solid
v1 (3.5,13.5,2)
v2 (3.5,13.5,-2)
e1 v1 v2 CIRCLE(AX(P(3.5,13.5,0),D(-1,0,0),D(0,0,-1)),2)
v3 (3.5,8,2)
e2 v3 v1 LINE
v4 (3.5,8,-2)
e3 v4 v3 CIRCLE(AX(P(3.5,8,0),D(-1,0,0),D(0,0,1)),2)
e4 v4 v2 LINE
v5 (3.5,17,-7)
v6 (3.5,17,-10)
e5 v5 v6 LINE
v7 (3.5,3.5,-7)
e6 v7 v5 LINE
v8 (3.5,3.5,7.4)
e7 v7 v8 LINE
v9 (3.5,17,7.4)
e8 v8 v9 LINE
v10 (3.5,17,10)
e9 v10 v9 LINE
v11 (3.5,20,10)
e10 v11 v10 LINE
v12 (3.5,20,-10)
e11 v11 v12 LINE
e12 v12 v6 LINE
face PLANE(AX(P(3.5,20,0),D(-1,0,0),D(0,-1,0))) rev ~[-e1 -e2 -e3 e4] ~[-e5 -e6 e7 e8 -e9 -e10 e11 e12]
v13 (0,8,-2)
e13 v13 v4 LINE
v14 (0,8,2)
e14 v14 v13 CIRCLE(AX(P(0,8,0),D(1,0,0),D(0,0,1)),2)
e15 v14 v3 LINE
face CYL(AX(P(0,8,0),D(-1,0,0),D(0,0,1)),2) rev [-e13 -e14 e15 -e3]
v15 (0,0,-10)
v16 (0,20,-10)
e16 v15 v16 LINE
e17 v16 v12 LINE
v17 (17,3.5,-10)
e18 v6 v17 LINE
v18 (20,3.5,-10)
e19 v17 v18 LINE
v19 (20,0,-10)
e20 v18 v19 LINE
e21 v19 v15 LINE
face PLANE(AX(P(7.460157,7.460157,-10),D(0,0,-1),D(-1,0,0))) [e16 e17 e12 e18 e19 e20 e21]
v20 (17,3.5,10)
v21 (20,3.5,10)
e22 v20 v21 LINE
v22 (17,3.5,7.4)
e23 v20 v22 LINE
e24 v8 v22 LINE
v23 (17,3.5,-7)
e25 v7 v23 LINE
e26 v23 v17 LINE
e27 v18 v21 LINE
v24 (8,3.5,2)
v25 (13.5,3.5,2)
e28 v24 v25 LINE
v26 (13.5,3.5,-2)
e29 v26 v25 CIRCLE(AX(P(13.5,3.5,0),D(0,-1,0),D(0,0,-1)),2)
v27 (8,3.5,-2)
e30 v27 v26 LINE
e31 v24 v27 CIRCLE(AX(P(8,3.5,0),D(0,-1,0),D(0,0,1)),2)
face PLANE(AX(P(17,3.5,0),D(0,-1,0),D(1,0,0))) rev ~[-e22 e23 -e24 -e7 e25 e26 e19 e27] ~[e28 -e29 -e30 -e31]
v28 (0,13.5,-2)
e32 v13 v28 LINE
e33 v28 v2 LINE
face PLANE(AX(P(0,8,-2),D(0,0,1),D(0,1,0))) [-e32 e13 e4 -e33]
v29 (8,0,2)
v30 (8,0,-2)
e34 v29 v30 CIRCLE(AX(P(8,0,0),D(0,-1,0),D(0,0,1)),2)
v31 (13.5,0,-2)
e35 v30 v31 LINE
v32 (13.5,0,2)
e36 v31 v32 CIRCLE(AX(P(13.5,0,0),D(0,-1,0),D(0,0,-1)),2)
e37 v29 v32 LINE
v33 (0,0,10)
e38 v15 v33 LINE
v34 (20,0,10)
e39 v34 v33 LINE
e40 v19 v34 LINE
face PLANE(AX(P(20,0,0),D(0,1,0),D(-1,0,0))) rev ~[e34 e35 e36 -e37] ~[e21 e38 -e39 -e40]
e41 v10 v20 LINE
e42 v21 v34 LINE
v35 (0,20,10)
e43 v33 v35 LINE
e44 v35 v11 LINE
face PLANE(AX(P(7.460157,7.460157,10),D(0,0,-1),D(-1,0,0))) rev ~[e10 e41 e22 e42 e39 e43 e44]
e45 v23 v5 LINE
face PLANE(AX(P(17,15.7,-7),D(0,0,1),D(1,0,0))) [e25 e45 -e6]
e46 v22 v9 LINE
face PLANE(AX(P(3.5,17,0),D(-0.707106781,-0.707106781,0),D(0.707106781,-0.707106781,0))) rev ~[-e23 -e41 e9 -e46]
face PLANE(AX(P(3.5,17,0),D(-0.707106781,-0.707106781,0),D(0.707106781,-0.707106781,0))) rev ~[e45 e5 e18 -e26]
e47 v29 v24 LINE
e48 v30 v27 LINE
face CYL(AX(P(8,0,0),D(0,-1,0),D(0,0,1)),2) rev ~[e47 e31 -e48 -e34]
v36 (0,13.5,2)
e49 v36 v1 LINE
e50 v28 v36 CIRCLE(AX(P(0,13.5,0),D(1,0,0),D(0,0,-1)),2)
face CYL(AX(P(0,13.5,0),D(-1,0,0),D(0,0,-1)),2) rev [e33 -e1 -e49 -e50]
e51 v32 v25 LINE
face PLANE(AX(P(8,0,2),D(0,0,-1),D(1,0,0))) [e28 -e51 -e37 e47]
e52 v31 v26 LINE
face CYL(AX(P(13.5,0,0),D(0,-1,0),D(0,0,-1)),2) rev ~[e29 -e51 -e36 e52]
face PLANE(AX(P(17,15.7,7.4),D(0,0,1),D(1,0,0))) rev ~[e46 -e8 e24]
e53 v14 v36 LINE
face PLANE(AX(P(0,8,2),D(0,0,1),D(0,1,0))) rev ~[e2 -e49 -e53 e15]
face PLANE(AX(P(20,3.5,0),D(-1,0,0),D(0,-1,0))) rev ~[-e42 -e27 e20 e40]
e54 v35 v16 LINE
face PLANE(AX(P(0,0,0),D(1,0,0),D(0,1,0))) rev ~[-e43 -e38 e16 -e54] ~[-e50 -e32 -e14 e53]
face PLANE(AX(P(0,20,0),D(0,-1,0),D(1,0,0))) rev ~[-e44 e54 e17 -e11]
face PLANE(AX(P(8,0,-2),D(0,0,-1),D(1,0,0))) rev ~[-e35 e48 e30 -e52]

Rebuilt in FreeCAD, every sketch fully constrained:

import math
import FreeCAD as App
import Part
import Sketcher


def add_polygon(sketch, points):
    """Adds a closed chain of lines whose ends are joined by coincident constraints."""
    first, n = sketch.GeometryCount, len(points)
    for a, b in zip(points, points[1:] + points[:1]):
        sketch.addGeometry(Part.LineSegment(App.Vector(*a, 0), App.Vector(*b, 0)), False)
    for i in range(n):
        sketch.addConstraint(Sketcher.Constraint("Coincident", first + i, 2, first + (i + 1) % n, 1))

doc = App.newDocument("Part")
body = doc.addObject("PartDesign::Body", "Body")

# Sketch on XY plane
sketch1 = body.newObject("Sketcher::SketchObject", "Sketch")
sketch1.AttachmentSupport = (doc.getObject("XY_Plane"), [""])
sketch1.MapMode = "FlatFace"
add_polygon(sketch1, [(0, 20), (0, 0), (20, 0), (20, 3.5), (17, 3.5), (3.5, 17), (3.5, 20)])  # lines 0-6
sketch1.addConstraint([
    Sketcher.Constraint("Vertical", 0),
    Sketcher.Constraint("Horizontal", 1),
    Sketcher.Constraint("Vertical", 2),
    Sketcher.Constraint("Horizontal", 3),
    Sketcher.Constraint("Vertical", 5),
    Sketcher.Constraint("Horizontal", 6),
    Sketcher.Constraint("Coincident", 0, 2, -1, 1),
    Sketcher.Constraint("Equal", 1, 0),
    Sketcher.Constraint("Equal", 6, 2),
    Sketcher.Constraint("Equal", 3, 5),
    Sketcher.Constraint("DistanceX", 1, 1, 1, 2, 20.0),
    Sketcher.Constraint("DistanceX", 3, 2, 3, 1, 3.0),
    Sketcher.Constraint("DistanceX", 6, 2, 6, 1, 3.5),
])
pad1 = body.newObject("PartDesign::Pad", "Pad")
pad1.Profile = sketch1
pad1.Length = 20
pad1.Midplane = True

# Sketch on XY plane
sketch2 = body.newObject("Sketcher::SketchObject", "Sketch001")
sketch2.AttachmentSupport = (doc.getObject("XY_Plane"), [""])
sketch2.MapMode = "FlatFace"
sketch2.AttachmentOffset = App.Placement(App.Vector(0, 0, -7), App.Rotation())
add_polygon(sketch2, [(4, 28), (4, 4), (30, 4), (30, 28)])  # lines 0-3
sketch2.addConstraint([
    Sketcher.Constraint("Vertical", 0),
    Sketcher.Constraint("Horizontal", 1),
    Sketcher.Constraint("Vertical", 2),
    Sketcher.Constraint("Horizontal", 3),
    Sketcher.Constraint("DistanceX", 1, 1, 1, 2, 27.0),
    Sketcher.Constraint("DistanceY", 0, 2, 0, 1, 24.4),
    Sketcher.Constraint("DistanceX", -1, 1, 0, 2, 3.5),
    Sketcher.Constraint("DistanceY", -1, 1, 0, 2, 3.5),
])
pocket1 = body.newObject("PartDesign::Pocket", "Pocket")
pocket1.Profile = sketch2
pocket1.Length = 14.4
pocket1.Reversed = True

# Sketch on XZ plane
sketch3 = body.newObject("Sketcher::SketchObject", "Sketch002")
sketch3.AttachmentSupport = (doc.getObject("XZ_Plane"), [""])
sketch3.MapMode = "FlatFace"
sketch3.addGeometry([
    Part.ArcOfCircle(Part.Circle(App.Vector(8, 0, 0), App.Vector(0, 0, 1), 2), math.radians(90), math.radians(270)),
    Part.LineSegment(App.Vector(8, -2, 0), App.Vector(13.5, -2, 0)),
    Part.ArcOfCircle(Part.Circle(App.Vector(13.5, 0, 0), App.Vector(0, 0, 1), 2), math.radians(-90), math.radians(90)),
    Part.LineSegment(App.Vector(13.5, 2, 0), App.Vector(8, 2, 0)),
], False)
sketch3.addConstraint([
    Sketcher.Constraint("Tangent", 0, 2, 1, 1),
    Sketcher.Constraint("Tangent", 1, 2, 2, 1),
    Sketcher.Constraint("Tangent", 2, 2, 3, 1),
    Sketcher.Constraint("Tangent", 3, 2, 0, 1),
    Sketcher.Constraint("Horizontal", 1),
    Sketcher.Constraint("Horizontal", 3),
    Sketcher.Constraint("PointOnObject", 0, 3, -1),
    Sketcher.Constraint("Radius", 0, 2.0),
    Sketcher.Constraint("DistanceX", 1, 1, 1, 2, 5.5),
    Sketcher.Constraint("DistanceX", -1, 1, 0, 3, 8.0),
])
pocket2 = body.newObject("PartDesign::Pocket", "Pocket001")
pocket2.Profile = sketch3
pocket2.Type = "ThroughAll"

# Sketch on YZ plane
sketch4 = body.newObject("Sketcher::SketchObject", "Sketch003")
sketch4.AttachmentSupport = (doc.getObject("YZ_Plane"), [""])
sketch4.MapMode = "FlatFace"
sketch4.addGeometry([
    Part.ArcOfCircle(Part.Circle(App.Vector(8, 0, 0), App.Vector(0, 0, 1), 2), math.radians(90), math.radians(270)),
    Part.LineSegment(App.Vector(8, -2, 0), App.Vector(13.5, -2, 0)),
    Part.ArcOfCircle(Part.Circle(App.Vector(13.5, 0, 0), App.Vector(0, 0, 1), 2), math.radians(-90), math.radians(90)),
    Part.LineSegment(App.Vector(13.5, 2, 0), App.Vector(8, 2, 0)),
], False)
sketch4.addConstraint([
    Sketcher.Constraint("Tangent", 0, 2, 1, 1),
    Sketcher.Constraint("Tangent", 1, 2, 2, 1),
    Sketcher.Constraint("Tangent", 2, 2, 3, 1),
    Sketcher.Constraint("Tangent", 3, 2, 0, 1),
    Sketcher.Constraint("Horizontal", 1),
    Sketcher.Constraint("Horizontal", 3),
    Sketcher.Constraint("PointOnObject", 0, 3, -1),
    Sketcher.Constraint("Radius", 0, 2.0),
    Sketcher.Constraint("DistanceX", 1, 1, 1, 2, 5.5),
    Sketcher.Constraint("DistanceX", -1, 1, 0, 3, 8.0),
])
pocket3 = body.newObject("PartDesign::Pocket", "Pocket002")
pocket3.Profile = sketch4
pocket3.Type = "ThroughAll"
pocket3.Reversed = True

doc.recompute()
